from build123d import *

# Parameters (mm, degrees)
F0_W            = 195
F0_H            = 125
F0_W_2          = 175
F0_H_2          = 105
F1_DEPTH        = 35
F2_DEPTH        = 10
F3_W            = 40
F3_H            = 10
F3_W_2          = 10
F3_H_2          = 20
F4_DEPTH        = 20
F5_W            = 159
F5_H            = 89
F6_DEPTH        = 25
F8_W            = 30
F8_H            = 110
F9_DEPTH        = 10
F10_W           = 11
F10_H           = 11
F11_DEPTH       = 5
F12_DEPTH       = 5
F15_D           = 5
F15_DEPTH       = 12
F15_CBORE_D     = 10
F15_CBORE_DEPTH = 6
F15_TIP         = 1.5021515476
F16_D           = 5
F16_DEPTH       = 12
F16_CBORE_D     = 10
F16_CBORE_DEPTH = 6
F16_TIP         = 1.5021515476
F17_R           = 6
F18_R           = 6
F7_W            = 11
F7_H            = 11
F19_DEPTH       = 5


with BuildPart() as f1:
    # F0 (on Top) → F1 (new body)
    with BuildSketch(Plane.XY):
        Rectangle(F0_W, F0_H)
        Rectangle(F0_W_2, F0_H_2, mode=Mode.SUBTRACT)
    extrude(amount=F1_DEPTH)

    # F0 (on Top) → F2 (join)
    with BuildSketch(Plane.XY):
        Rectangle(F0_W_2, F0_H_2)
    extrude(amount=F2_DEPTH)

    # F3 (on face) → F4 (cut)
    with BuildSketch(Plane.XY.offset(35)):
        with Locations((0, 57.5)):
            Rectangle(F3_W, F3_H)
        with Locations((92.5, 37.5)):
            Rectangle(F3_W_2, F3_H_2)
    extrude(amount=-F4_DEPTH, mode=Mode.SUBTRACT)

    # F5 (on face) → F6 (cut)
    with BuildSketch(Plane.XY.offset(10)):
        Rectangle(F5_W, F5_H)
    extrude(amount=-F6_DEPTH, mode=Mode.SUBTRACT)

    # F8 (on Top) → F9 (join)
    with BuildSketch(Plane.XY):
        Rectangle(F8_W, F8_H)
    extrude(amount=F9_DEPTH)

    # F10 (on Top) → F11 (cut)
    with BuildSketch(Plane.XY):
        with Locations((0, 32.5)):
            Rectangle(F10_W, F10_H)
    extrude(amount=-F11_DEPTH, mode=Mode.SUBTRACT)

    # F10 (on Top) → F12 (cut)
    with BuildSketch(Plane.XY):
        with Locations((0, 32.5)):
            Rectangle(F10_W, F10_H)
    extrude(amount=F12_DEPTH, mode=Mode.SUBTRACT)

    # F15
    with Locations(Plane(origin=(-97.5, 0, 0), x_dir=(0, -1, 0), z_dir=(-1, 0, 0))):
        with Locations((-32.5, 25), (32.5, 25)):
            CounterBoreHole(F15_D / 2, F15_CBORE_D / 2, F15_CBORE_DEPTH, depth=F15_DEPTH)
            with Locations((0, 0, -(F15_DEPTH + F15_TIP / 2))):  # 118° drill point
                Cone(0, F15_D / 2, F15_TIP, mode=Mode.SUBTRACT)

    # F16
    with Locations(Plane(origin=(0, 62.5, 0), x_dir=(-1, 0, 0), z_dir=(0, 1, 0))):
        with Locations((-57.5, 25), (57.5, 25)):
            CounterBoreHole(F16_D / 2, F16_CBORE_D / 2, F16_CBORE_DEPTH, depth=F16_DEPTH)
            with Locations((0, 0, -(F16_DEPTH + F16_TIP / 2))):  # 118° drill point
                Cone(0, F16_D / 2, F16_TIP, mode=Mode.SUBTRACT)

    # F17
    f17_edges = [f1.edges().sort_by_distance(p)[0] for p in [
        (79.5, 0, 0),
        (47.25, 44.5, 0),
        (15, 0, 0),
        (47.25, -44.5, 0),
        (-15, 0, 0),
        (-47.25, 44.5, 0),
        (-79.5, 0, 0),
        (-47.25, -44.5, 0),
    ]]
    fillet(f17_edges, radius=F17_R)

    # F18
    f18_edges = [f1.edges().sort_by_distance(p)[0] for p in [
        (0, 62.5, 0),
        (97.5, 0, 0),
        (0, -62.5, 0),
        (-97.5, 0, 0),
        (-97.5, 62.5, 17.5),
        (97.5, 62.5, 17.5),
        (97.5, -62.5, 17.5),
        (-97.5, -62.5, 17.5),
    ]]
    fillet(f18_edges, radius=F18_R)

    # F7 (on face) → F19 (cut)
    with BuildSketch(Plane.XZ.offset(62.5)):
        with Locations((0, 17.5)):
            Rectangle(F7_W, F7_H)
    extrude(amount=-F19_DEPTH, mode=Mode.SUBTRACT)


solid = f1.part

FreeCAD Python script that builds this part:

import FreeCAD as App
import Part
import Sketcher


def edges_at(feature, points):
    """Names of the edges that pass closest to the given points."""
    edges = feature.Shape.Edges
    near = lambda p: min(range(len(edges)), key=lambda i: edges[i].distToShape(Part.Vertex(*p))[0])
    return sorted({f"Edge{near(p) + 1}" for p in points})


def add_polygon(sketch, points):
    """Adds a closed chain of lines whose ends are joined by coincident constraints."""
    first, n = sketch.GeometryCount, len(points)
    for a, b in zip(points, points[1:] + points[:1]):
        sketch.addGeometry(Part.LineSegment(App.Vector(*a, 0), App.Vector(*b, 0)), False)
    for i in range(n):
        sketch.addConstraint(Sketcher.Constraint("Coincident", first + i, 2, first + (i + 1) % n, 1))

doc = App.newDocument("Part")
params = doc.addObject("Spreadsheet::Sheet", "Params")
for row, (alias, value) in enumerate([
    ("sketch1_width", "195 mm"),
    ("sketch1_width2", "175 mm"),
    ("sketch1_height", "125 mm"),
    ("sketch1_height2", "105 mm"),
    ("pad1_length", "35 mm"),
    ("sketch2_width", "175 mm"),
    ("sketch2_height", "105 mm"),
    ("pad2_length", "10 mm"),
    ("sketch3_width", "40 mm"),
    ("sketch3_width2", "10 mm"),
    ("sketch3_height", "20 mm"),
    ("pocket1_length", "20 mm"),
    ("sketch4_width", "159 mm"),
    ("sketch4_height", "89 mm"),
    ("pocket2_length", "25 mm"),
    ("sketch5_width", "30 mm"),
    ("sketch5_height", "110 mm"),
    ("pad3_length", "10 mm"),
    ("sketch6_width", "11 mm"),
    ("pocket3_length", "5 mm"),
    ("sketch7_width", "11 mm"),
    ("pocket4_length", "5 mm"),
    ("sketch8_diameter", "5 mm"),
    ("hole_diameter", "5 mm"),
    ("hole_depth", "12 mm"),
    ("hole_cbore_diameter", "10 mm"),
    ("hole_cbore_depth", "6 mm"),
    ("sketch9_diameter", "5 mm"),
    ("hole2_diameter", "5 mm"),
    ("hole2_depth", "12 mm"),
    ("hole2_cbore_diameter", "10 mm"),
    ("hole2_cbore_depth", "6 mm"),
    ("fillet_radius", "6 mm"),
    ("fillet2_radius", "6 mm"),
    ("sketch10_width", "11 mm"),
    ("pocket5_length", "5 mm"),
], start=1):
    params.set(f"A{row}", alias)
    params.set(f"B{row}", "=" + value)
    params.setAlias(f"B{row}", alias)

body = doc.addObject("PartDesign::Body", "Body")

# Sketch on XY plane
sketch1 = body.newObject("Sketcher::SketchObject", "Sketch")
sketch1.AttachmentSupport = (doc.getObject("XY_Plane"), [""])
sketch1.MapMode = "FlatFace"
add_polygon(sketch1, [(-98, 62), (-98, -62), (98, -62), (98, 62)])  # lines 0-3
add_polygon(sketch1, [(88, -52), (-88, -52), (-88, 52), (88, 52)])  # lines 4-7
sketch1.addConstraint([
    Sketcher.Constraint("Vertical", 0),
    Sketcher.Constraint("Horizontal", 1),
    Sketcher.Constraint("Vertical", 2),
    Sketcher.Constraint("Horizontal", 3),
    Sketcher.Constraint("Horizontal", 4),
    Sketcher.Constraint("Vertical", 5),
    Sketcher.Constraint("Horizontal", 6),
    Sketcher.Constraint("Vertical", 7),
    Sketcher.Constraint("Symmetric", 0, 2, 2, 2, -1, 1),
    Sketcher.Constraint("Symmetric", 4, 2, 6, 2, -1, 1),
    Sketcher.Constraint("DistanceX", 1, 1, 1, 2, 195.0),
    Sketcher.Constraint("DistanceX", 4, 2, 4, 1, 175.0),
    Sketcher.Constraint("DistanceY", 0, 2, 0, 1, 125.0),
    Sketcher.Constraint("DistanceY", 5, 1, 5, 2, 105.0),
])
sketch1.setExpression("Constraints[18]", "Params.sketch1_width")
sketch1.setExpression("Constraints[19]", "Params.sketch1_width2")
sketch1.setExpression("Constraints[20]", "Params.sketch1_height")
sketch1.setExpression("Constraints[21]", "Params.sketch1_height2")
pad1 = body.newObject("PartDesign::Pad", "Pad")
pad1.Profile = sketch1
pad1.setExpression("Length", "Params.pad1_length")

# Sketch on XY plane
sketch2 = body.newObject("Sketcher::SketchObject", "Sketch001")
sketch2.AttachmentSupport = (doc.getObject("XY_Plane"), [""])
sketch2.MapMode = "FlatFace"
add_polygon(sketch2, [(-88, 52), (-88, -52), (88, -52), (88, 52)])  # lines 0-3
sketch2.addConstraint([
    Sketcher.Constraint("Vertical", 0),
    Sketcher.Constraint("Horizontal", 1),
    Sketcher.Constraint("Vertical", 2),
    Sketcher.Constraint("Horizontal", 3),
    Sketcher.Constraint("Symmetric", 0, 2, 2, 2, -1, 1),
    Sketcher.Constraint("DistanceX", 1, 1, 1, 2, 175.0),
    Sketcher.Constraint("DistanceY", 0, 2, 0, 1, 105.0),
])
sketch2.setExpression("Constraints[9]", "Params.sketch2_width")
sketch2.setExpression("Constraints[10]", "Params.sketch2_height")
pad2 = body.newObject("PartDesign::Pad", "Pad001")
pad2.Profile = sketch2
pad2.setExpression("Length", "Params.pad2_length")

# Sketch on XY plane
sketch3 = body.newObject("Sketcher::SketchObject", "Sketch002")
sketch3.AttachmentSupport = (doc.getObject("XY_Plane"), [""])
sketch3.MapMode = "FlatFace"
sketch3.AttachmentOffset = App.Placement(App.Vector(0, 0, 35), App.Rotation())
add_polygon(sketch3, [(-20, 62), (-20, 52), (20, 52), (20, 62)])  # lines 0-3
add_polygon(sketch3, [(88, 48), (88, 28), (98, 28), (98, 48)])  # lines 4-7
sketch3.addConstraint([
    Sketcher.Constraint("Vertical", 0),
    Sketcher.Constraint("Horizontal", 1),
    Sketcher.Constraint("Vertical", 2),
    Sketcher.Constraint("Horizontal", 3),
    Sketcher.Constraint("Vertical", 4),
    Sketcher.Constraint("Horizontal", 5),
    Sketcher.Constraint("Vertical", 6),
    Sketcher.Constraint("Horizontal", 7),
    Sketcher.Constraint("Equal", 7, 0),
    Sketcher.Constraint("DistanceX", 1, 1, 1, 2, 40.0),
    Sketcher.Constraint("DistanceX", 5, 1, 5, 2, 10.0),
    Sketcher.Constraint("DistanceY", 4, 2, 4, 1, 20.0),
    Sketcher.Constraint("DistanceX", 0, 2, -1, 1, 20.0),
    Sketcher.Constraint("DistanceY", 4, 2, 1, 2, 25.0),
    Sketcher.Constraint("DistanceY", -1, 1, 0, 2, 52.5),
    Sketcher.Constraint("DistanceX", -1, 1, 4, 2, 87.5),
])
sketch3.setExpression("Constraints[17]", "Params.sketch3_width")
sketch3.setExpression("Constraints[18]", "Params.sketch3_width2")
sketch3.setExpression("Constraints[19]", "Params.sketch3_height")
pocket1 = body.newObject("PartDesign::Pocket", "Pocket")
pocket1.Profile = sketch3
pocket1.setExpression("Length", "Params.pocket1_length")

# Sketch on XY plane
sketch4 = body.newObject("Sketcher::SketchObject", "Sketch003")
sketch4.AttachmentSupport = (doc.getObject("XY_Plane"), [""])
sketch4.MapMode = "FlatFace"
sketch4.AttachmentOffset = App.Placement(App.Vector(0, 0, 10), App.Rotation())
add_polygon(sketch4, [(-80, 44), (-80, -44), (80, -44), (80, 44)])  # lines 0-3
sketch4.addConstraint([
    Sketcher.Constraint("Vertical", 0),
    Sketcher.Constraint("Horizontal", 1),
    Sketcher.Constraint("Vertical", 2),
    Sketcher.Constraint("Horizontal", 3),
    Sketcher.Constraint("Symmetric", 0, 2, 2, 2, -1, 1),
    Sketcher.Constraint("DistanceX", 1, 1, 1, 2, 159.0),
    Sketcher.Constraint("DistanceY", 0, 2, 0, 1, 89.0),
])
sketch4.setExpression("Constraints[9]", "Params.sketch4_width")
sketch4.setExpression("Constraints[10]", "Params.sketch4_height")
pocket2 = body.newObject("PartDesign::Pocket", "Pocket001")
pocket2.Profile = sketch4
pocket2.setExpression("Length", "Params.pocket2_length")

# Sketch on XY plane
sketch5 = body.newObject("Sketcher::SketchObject", "Sketch004")
sketch5.AttachmentSupport = (doc.getObject("XY_Plane"), [""])
sketch5.MapMode = "FlatFace"
add_polygon(sketch5, [(-15, 55), (-15, -55), (15, -55), (15, 55)])  # lines 0-3
sketch5.addConstraint([
    Sketcher.Constraint("Vertical", 0),
    Sketcher.Constraint("Horizontal", 1),
    Sketcher.Constraint("Vertical", 2),
    Sketcher.Constraint("Horizontal", 3),
    Sketcher.Constraint("Symmetric", 0, 2, 2, 2, -1, 1),
    Sketcher.Constraint("DistanceX", 1, 1, 1, 2, 30.0),
    Sketcher.Constraint("DistanceY", 0, 2, 0, 1, 110.0),
])
sketch5.setExpression("Constraints[9]", "Params.sketch5_width")
sketch5.setExpression("Constraints[10]", "Params.sketch5_height")
pad3 = body.newObject("PartDesign::Pad", "Pad002")
pad3.Profile = sketch5
pad3.setExpression("Length", "Params.pad3_length")

# Sketch on XY plane
sketch6 = body.newObject("Sketcher::SketchObject", "Sketch005")
sketch6.AttachmentSupport = (doc.getObject("XY_Plane"), [""])
sketch6.MapMode = "FlatFace"
add_polygon(sketch6, [(-6, 38), (-6, 27), (6, 27), (6, 38)])  # lines 0-3
sketch6.addConstraint([
    Sketcher.Constraint("Vertical", 0),
    Sketcher.Constraint("Horizontal", 1),
    Sketcher.Constraint("Vertical", 2),
    Sketcher.Constraint("Horizontal", 3),
    Sketcher.Constraint("Equal", 3, 0),
    Sketcher.Constraint("DistanceX", 1, 1, 1, 2, 11.0),
    Sketcher.Constraint("DistanceY", -1, 1, 0, 2, 27.0),
    Sketcher.Constraint("DistanceX", 0, 2, -1, 1, 5.5),
])
sketch6.setExpression("Constraints[9]", "Params.sketch6_width")
pocket3 = body.newObject("PartDesign::Pocket", "Pocket002")
pocket3.Profile = sketch6
pocket3.setExpression("Length", "Params.pocket3_length")

# Sketch on XY plane
sketch7 = body.newObject("Sketcher::SketchObject", "Sketch006")
sketch7.AttachmentSupport = (doc.getObject("XY_Plane"), [""])
sketch7.MapMode = "FlatFace"
add_polygon(sketch7, [(-6, 38), (-6, 27), (6, 27), (6, 38)])  # lines 0-3
sketch7.addConstraint([
    Sketcher.Constraint("Vertical", 0),
    Sketcher.Constraint("Horizontal", 1),
    Sketcher.Constraint("Vertical", 2),
    Sketcher.Constraint("Horizontal", 3),
    Sketcher.Constraint("Equal", 3, 0),
    Sketcher.Constraint("DistanceX", 1, 1, 1, 2, 11.0),
    Sketcher.Constraint("DistanceY", -1, 1, 0, 2, 27.0),
    Sketcher.Constraint("DistanceX", 0, 2, -1, 1, 5.5),
])
sketch7.setExpression("Constraints[9]", "Params.sketch7_width")
pocket4 = body.newObject("PartDesign::Pocket", "Pocket003")
pocket4.Profile = sketch7
pocket4.setExpression("Length", "Params.pocket4_length")
pocket4.Reversed = True

# Sketch on YZ plane
sketch8 = body.newObject("Sketcher::SketchObject", "Sketch007")
sketch8.AttachmentSupport = (doc.getObject("YZ_Plane"), [""])
sketch8.MapMode = "FlatFace"
sketch8.AttachmentOffset = App.Placement(App.Vector(0, 0, -97.5), App.Rotation())
sketch8.addGeometry([
    Part.Circle(App.Vector(32.5, 25, 0), App.Vector(0, 0, 1), 2.5),
    Part.Circle(App.Vector(-32.5, 25, 0), App.Vector(0, 0, 1), 2.5),
], False)
sketch8.addConstraint([
    Sketcher.Constraint("Equal", 0, 1),
    Sketcher.Constraint("Symmetric", 0, 3, 1, 3, -2),
    Sketcher.Constraint("Diameter", 0, 5.0),
    Sketcher.Constraint("DistanceY", -1, 1, 0, 3, 25.0),
    Sketcher.Constraint("DistanceX", 1, 3, 0, 3, 65.0),
])
sketch8.setExpression("Constraints[2]", "Params.sketch8_diameter")
doc.recompute()
hole = body.newObject("PartDesign::Hole", "Hole")
hole.Profile = sketch8
hole.ThreadType = "None"
hole.setExpression("Diameter", "Params.hole_diameter")
hole.DepthType = "Dimension"
hole.setExpression("Depth", "Params.hole_depth")
hole.DrillPoint = "Angled"
hole.DrillPointAngle = 118
hole.HoleCutType = "Counterbore"
hole.setExpression("HoleCutDiameter", "Params.hole_cbore_diameter")
hole.setExpression("HoleCutDepth", "Params.hole_cbore_depth")
hole.Reversed = True

# Sketch on XZ plane
sketch9 = body.newObject("Sketcher::SketchObject", "Sketch008")
sketch9.AttachmentSupport = (doc.getObject("XZ_Plane"), [""])
sketch9.MapMode = "FlatFace"
sketch9.AttachmentOffset = App.Placement(App.Vector(0, 0, -62.5), App.Rotation())
sketch9.addGeometry([
    Part.Circle(App.Vector(57.5, 25, 0), App.Vector(0, 0, 1), 2.5),
    Part.Circle(App.Vector(-57.5, 25, 0), App.Vector(0, 0, 1), 2.5),
], False)
sketch9.addConstraint([
    Sketcher.Constraint("Equal", 0, 1),
    Sketcher.Constraint("Symmetric", 0, 3, 1, 3, -2),
    Sketcher.Constraint("Diameter", 0, 5.0),
    Sketcher.Constraint("DistanceY", -1, 1, 0, 3, 25.0),
    Sketcher.Constraint("DistanceX", 1, 3, 0, 3, 115.0),
])
sketch9.setExpression("Constraints[2]", "Params.sketch9_diameter")
doc.recompute()
hole2 = body.newObject("PartDesign::Hole", "Hole001")
hole2.Profile = sketch9
hole2.ThreadType = "None"
hole2.setExpression("Diameter", "Params.hole2_diameter")
hole2.DepthType = "Dimension"
hole2.setExpression("Depth", "Params.hole2_depth")
hole2.DrillPoint = "Angled"
hole2.DrillPointAngle = 118
hole2.HoleCutType = "Counterbore"
hole2.setExpression("HoleCutDiameter", "Params.hole2_cbore_diameter")
hole2.setExpression("HoleCutDepth", "Params.hole2_cbore_depth")
hole2.Reversed = True
doc.recompute()

fillet = body.newObject("PartDesign::Fillet", "Fillet")
fillet.Base = (hole2, edges_at(hole2, [
    (79.5, 0, 0),
    (47.25, 44.5, 0),
    (15, 0, 0),
    (47.25, -44.5, 0),
    (-15, 0, 0),
    (-47.25, 44.5, 0),
    (-79.5, 0, 0),
    (-47.25, -44.5, 0),
]))
fillet.setExpression("Radius", "Params.fillet_radius")
doc.recompute()

fillet2 = body.newObject("PartDesign::Fillet", "Fillet001")
fillet2.Base = (fillet, edges_at(fillet, [
    (0, 62.5, 0),
    (97.5, 0, 0),
    (0, -62.5, 0),
    (-97.5, 0, 0),
    (-97.5, 62.5, 17.5),
    (97.5, 62.5, 17.5),
    (97.5, -62.5, 17.5),
    (-97.5, -62.5, 17.5),
]))
fillet2.setExpression("Radius", "Params.fillet2_radius")

# Sketch on XZ plane
sketch10 = body.newObject("Sketcher::SketchObject", "Sketch009")
sketch10.AttachmentSupport = (doc.getObject("XZ_Plane"), [""])
sketch10.MapMode = "FlatFace"
sketch10.AttachmentOffset = App.Placement(App.Vector(0, 0, 62.5), App.Rotation())
add_polygon(sketch10, [(-6, 23), (-6, 12), (6, 12), (6, 23)])  # lines 0-3
sketch10.addConstraint([
    Sketcher.Constraint("Vertical", 0),
    Sketcher.Constraint("Horizontal", 1),
    Sketcher.Constraint("Vertical", 2),
    Sketcher.Constraint("Horizontal", 3),
    Sketcher.Constraint("Equal", 3, 0),
    Sketcher.Constraint("DistanceX", 1, 1, 1, 2, 11.0),
    Sketcher.Constraint("DistanceY", -1, 1, 0, 2, 12.0),
    Sketcher.Constraint("DistanceX", 0, 2, -1, 1, 5.5),
])
sketch10.setExpression("Constraints[9]", "Params.sketch10_width")
pocket5 = body.newObject("PartDesign::Pocket", "Pocket004")
pocket5.Profile = sketch10
pocket5.setExpression("Length", "Params.pocket5_length")

doc.recompute()
